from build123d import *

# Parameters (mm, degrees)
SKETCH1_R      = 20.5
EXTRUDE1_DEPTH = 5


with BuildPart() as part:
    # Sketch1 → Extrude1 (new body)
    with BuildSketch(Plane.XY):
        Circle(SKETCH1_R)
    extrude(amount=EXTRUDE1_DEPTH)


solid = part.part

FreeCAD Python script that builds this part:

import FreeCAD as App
import Part
import Sketcher

doc = App.newDocument("Part")
params = doc.addObject("Spreadsheet::Sheet", "Params")
for row, (alias, value) in enumerate([
    ("sketch1_diameter", "41 mm"),
    ("pad1_length", "5 mm"),
], start=1):
    params.set(f"A{row}", alias)
    params.set(f"B{row}", "=" + value)
    params.setAlias(f"B{row}", alias)

body = doc.addObject("PartDesign::Body", "Body")

# Sketch on XY plane
sketch1 = body.newObject("Sketcher::SketchObject", "Sketch")
sketch1.AttachmentSupport = (doc.getObject("XY_Plane"), [""])
sketch1.MapMode = "FlatFace"
sketch1.addGeometry(Part.Circle(App.Vector(0, 0, 0), App.Vector(0, 0, 1), 20), False)
sketch1.addConstraint([
    Sketcher.Constraint("Coincident", 0, 3, -1, 1),
    Sketcher.Constraint("Diameter", 0, 41.0),
])
sketch1.setExpression("Constraints[1]", "Params.sketch1_diameter")
pad1 = body.newObject("PartDesign::Pad", "Pad")
pad1.Profile = sketch1
pad1.setExpression("Length", "Params.pad1_length")

doc.recompute()
